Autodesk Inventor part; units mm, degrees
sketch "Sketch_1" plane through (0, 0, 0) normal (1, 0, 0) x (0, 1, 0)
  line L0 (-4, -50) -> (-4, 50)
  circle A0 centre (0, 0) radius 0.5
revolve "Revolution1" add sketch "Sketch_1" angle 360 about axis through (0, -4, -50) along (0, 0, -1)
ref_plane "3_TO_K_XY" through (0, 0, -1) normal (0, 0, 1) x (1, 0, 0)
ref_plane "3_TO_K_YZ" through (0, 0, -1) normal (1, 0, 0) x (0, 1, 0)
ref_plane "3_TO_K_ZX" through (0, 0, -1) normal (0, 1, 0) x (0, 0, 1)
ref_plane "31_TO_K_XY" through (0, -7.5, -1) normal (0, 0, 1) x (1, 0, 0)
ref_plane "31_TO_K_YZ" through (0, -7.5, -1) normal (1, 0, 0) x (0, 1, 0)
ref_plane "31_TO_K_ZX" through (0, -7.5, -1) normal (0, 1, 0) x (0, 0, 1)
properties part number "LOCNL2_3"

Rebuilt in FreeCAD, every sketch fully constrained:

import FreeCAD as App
import Part
import Sketcher

V = App.Vector
Q = App.Units.Quantity

doc = App.newDocument("Part")
body = doc.addObject("PartDesign::Body", "Body")

sketch1 = body.newObject("Sketcher::SketchObject", "Sketch")
sketch1.AttachmentSupport = (doc.getObject("YZ_Plane"), [""])
sketch1.MapMode = "FlatFace"
sketch1.addGeometry(Part.Circle(V(0, 0, 0), V(0, 0, 1), 0.5), False)
sketch1.addGeometry(Part.LineSegment(V(-4, 0, 0), V(-4, -10, 0)), True)
sketch1.addConstraint([
    Sketcher.Constraint("Vertical", 1),
    Sketcher.Constraint("Coincident", 0, 3, -1, 1),
    Sketcher.Constraint("PointOnObject", 1, 1, -1),
    Sketcher.Constraint("Diameter", 0, Q("1 mm")),
    Sketcher.Constraint("DistanceY", 1, 2, 1, 1, Q("10 mm")),
    Sketcher.Constraint("DistanceX", 1, 1, -1, 1, Q("4 mm")),
])
revolution = body.newObject("PartDesign::Revolution", "Revolution")
revolution.Profile = sketch1
revolution.ReferenceAxis = (sketch1, ["Axis0"])
revolution.Angle = 360

doc.recompute()
